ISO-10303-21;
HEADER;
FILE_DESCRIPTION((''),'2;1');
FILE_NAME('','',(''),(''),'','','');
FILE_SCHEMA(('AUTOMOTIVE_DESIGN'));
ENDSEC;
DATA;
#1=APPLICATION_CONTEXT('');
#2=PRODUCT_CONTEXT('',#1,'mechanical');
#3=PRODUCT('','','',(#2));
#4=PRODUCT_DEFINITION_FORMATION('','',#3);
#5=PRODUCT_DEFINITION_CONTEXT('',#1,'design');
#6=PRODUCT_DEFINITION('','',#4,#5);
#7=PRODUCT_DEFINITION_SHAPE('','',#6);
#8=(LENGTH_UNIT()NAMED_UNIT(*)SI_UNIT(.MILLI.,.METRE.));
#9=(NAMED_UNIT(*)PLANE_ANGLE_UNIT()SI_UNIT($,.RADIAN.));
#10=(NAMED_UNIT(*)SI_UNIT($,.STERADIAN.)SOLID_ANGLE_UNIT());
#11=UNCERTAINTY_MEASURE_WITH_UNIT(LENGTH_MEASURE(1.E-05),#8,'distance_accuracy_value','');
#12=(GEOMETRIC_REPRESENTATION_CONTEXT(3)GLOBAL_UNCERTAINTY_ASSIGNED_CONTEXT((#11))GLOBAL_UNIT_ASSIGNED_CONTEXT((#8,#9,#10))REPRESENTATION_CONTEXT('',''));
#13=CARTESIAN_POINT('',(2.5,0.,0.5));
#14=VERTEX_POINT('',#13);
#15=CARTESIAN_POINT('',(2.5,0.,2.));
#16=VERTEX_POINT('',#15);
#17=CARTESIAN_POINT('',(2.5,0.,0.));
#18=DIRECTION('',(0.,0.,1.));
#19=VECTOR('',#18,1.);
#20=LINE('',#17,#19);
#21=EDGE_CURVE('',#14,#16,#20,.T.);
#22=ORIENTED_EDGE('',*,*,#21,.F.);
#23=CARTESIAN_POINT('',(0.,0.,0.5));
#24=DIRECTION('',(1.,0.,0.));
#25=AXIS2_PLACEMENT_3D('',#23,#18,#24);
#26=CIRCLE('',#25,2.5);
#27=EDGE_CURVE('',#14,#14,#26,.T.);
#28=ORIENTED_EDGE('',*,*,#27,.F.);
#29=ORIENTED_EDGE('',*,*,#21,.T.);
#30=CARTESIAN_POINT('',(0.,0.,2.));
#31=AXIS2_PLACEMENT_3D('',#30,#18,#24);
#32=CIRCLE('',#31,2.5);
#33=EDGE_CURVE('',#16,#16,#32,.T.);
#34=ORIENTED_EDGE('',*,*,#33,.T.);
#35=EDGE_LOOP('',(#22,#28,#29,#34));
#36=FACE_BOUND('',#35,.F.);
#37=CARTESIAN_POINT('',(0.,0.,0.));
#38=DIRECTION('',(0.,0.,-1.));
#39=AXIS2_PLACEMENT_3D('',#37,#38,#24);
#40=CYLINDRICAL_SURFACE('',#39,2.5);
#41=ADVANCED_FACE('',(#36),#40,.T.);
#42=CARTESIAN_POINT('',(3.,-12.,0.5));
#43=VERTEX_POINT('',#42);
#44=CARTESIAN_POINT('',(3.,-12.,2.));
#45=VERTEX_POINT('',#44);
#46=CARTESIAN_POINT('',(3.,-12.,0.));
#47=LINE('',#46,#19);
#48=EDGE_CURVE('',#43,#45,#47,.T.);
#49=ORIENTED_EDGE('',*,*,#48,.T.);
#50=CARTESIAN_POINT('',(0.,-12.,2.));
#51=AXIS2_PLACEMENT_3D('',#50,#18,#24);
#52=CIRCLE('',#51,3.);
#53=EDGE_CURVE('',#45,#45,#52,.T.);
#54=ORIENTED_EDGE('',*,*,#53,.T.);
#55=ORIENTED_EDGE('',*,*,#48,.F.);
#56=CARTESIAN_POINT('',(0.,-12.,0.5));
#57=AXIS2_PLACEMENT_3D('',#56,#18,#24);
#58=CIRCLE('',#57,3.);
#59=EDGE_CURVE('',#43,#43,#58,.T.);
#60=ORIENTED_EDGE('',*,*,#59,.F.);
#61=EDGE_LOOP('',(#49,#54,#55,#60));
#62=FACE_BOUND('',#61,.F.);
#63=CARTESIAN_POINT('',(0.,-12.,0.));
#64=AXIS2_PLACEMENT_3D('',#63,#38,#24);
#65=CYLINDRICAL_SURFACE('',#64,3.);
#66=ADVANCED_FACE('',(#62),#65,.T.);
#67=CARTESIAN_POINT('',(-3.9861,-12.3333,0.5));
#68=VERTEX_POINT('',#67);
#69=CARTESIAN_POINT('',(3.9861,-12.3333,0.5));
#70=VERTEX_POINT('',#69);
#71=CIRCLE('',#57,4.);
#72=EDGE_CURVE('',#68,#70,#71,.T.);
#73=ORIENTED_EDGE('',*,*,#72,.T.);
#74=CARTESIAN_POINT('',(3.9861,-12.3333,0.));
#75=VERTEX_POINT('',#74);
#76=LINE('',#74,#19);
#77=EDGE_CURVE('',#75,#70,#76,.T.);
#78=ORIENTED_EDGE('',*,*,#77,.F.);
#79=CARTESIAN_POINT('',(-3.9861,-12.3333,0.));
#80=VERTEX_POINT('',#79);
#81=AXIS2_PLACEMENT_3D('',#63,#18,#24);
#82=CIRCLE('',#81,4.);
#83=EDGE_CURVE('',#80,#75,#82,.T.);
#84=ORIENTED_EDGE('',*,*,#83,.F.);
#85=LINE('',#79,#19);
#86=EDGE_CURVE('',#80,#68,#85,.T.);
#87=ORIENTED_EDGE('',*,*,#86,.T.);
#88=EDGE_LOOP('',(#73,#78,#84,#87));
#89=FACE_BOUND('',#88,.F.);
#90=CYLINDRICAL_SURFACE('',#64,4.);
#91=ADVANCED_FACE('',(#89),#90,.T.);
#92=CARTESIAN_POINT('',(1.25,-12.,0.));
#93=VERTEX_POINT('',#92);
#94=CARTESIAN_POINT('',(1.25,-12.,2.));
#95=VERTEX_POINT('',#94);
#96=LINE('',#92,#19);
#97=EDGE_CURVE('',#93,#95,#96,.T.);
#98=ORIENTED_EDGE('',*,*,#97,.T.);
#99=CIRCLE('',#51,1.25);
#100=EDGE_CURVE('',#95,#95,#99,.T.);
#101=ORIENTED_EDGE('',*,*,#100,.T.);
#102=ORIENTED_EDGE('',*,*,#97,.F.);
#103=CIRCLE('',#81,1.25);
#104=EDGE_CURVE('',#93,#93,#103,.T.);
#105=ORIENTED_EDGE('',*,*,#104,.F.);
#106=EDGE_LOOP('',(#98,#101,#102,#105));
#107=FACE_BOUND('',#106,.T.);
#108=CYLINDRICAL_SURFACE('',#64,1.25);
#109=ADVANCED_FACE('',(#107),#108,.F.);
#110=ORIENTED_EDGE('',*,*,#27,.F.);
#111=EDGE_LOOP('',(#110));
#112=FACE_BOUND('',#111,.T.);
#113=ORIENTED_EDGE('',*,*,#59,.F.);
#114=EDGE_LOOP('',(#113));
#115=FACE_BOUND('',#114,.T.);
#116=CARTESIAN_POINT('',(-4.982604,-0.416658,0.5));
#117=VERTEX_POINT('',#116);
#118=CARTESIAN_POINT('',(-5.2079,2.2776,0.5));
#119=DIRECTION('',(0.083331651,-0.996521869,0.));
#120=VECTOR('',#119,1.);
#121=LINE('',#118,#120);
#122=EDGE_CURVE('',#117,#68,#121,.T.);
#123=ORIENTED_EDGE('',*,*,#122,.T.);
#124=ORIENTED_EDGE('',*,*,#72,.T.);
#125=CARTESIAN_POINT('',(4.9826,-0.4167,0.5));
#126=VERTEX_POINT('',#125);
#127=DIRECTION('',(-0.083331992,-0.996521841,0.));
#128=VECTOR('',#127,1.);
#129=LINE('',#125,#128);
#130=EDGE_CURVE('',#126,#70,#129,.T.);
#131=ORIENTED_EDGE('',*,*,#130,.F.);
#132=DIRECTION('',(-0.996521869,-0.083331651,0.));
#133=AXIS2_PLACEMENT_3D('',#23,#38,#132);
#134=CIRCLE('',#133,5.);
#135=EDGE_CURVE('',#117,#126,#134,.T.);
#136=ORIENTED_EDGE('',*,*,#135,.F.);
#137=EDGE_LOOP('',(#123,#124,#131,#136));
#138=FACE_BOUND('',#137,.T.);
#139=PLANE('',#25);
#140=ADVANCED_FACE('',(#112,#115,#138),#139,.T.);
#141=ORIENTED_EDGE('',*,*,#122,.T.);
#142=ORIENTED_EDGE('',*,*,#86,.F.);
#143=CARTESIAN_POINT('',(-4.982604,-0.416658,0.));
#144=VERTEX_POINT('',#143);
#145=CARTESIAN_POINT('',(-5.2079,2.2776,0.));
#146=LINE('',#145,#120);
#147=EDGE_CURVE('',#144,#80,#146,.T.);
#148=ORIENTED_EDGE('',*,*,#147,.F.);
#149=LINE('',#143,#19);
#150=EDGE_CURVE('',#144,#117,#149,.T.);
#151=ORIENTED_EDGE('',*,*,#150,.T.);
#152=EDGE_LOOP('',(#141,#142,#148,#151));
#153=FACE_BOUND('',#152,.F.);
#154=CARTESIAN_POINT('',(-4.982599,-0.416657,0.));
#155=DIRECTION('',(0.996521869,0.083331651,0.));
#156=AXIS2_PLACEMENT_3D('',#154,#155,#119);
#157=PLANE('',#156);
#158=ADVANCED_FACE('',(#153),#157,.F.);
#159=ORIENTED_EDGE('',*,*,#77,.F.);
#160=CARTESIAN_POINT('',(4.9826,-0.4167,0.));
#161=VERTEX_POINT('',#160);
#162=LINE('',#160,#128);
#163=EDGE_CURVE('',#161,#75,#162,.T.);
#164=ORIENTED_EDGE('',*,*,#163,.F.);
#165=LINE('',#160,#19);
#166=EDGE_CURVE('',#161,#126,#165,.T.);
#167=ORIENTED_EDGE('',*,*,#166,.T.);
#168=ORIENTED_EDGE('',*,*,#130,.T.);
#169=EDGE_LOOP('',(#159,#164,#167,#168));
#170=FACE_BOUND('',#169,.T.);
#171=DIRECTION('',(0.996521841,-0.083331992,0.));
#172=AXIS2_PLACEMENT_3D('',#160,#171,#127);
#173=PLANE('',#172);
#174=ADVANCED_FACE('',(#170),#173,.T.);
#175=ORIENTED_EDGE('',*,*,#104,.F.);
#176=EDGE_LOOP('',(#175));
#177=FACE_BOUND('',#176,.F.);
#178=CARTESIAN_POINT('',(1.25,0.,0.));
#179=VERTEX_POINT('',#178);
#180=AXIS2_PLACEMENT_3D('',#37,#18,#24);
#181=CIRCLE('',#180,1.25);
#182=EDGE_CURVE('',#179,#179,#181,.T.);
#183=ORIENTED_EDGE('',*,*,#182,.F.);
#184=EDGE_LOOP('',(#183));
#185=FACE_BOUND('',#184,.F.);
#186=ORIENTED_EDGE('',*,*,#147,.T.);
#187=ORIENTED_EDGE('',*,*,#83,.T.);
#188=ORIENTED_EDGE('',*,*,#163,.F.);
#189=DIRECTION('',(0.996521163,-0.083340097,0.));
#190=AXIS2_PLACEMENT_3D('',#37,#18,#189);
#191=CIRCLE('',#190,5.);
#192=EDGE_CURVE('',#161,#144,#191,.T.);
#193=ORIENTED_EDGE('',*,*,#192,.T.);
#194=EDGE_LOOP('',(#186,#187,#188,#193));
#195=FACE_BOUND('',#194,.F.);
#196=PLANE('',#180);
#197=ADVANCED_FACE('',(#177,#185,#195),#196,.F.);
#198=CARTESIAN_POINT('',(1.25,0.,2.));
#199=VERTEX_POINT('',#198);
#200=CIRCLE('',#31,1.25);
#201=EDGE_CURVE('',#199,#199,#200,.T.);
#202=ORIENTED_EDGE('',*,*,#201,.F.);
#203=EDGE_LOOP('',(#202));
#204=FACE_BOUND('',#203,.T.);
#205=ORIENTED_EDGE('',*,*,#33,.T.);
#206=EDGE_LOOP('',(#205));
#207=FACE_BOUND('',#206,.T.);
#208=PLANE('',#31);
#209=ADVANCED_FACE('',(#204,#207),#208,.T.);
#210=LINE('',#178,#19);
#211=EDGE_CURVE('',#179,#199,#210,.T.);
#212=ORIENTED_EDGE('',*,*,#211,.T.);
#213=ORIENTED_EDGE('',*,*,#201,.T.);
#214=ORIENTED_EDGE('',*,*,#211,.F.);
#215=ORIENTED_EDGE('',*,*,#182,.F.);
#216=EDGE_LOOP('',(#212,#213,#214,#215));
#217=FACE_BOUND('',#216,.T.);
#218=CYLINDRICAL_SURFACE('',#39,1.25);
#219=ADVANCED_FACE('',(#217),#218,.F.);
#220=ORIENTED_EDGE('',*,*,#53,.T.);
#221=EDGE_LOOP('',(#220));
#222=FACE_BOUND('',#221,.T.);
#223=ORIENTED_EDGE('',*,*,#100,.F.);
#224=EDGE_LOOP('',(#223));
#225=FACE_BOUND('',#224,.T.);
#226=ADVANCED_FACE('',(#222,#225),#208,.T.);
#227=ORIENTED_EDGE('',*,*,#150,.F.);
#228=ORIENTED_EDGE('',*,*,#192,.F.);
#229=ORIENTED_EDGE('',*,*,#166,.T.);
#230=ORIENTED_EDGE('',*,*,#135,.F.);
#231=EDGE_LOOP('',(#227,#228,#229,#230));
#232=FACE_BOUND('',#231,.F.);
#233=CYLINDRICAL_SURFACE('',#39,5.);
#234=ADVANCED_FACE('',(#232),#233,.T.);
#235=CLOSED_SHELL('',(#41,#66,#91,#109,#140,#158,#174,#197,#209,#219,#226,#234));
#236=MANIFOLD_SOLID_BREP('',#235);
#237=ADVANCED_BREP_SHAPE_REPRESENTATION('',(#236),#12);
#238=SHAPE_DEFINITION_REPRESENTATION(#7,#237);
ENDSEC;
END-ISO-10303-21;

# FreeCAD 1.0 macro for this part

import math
import FreeCAD as App
import Part
import Sketcher
from FreeCAD import Vector

doc = App.newDocument("Part")
params = doc.addObject("Spreadsheet::Sheet", "Params")
for row, (alias, value) in enumerate([
    ("sketch1_diameter", "5 mm"),
    ("sketch1_diameter2", "6 mm"),
    ("sketch1_radius", "4 mm"),
    ("sketch1_radius2", "5 mm"),
    ("pad1_length", "0.5 mm"),
    ("sketch2_diameter", "5 mm"),
    ("sketch2_diameter2", "6 mm"),
    ("sketch2_diameter3", "2.5 mm"),
    ("pad2_length", "2 mm"),
], start=1):
    params.set(f"A{row}", alias)
    params.set(f"B{row}", "=" + value)
    params.setAlias(f"B{row}", alias)

body = doc.addObject("PartDesign::Body", "Body")

sketch1 = doc.addObject("Sketcher::SketchObject", "Sketch")
body.addObject(sketch1)
sketch1.AttachmentSupport = (doc.XY_Plane, [""])
sketch1.MapMode = "FlatFace"
sketch1.addGeometry([
    Part.LineSegment(Vector(-4.982599, -0.416657, 0), Vector(-3.9861, -12.3333, 0)),
    Part.ArcOfCircle(Part.Circle(Vector(0, -12, 0), Vector(0, 0, 1), 4), math.radians(-175.2203), math.radians(-4.7797)),
    Part.LineSegment(Vector(3.9861, -12.3333, 0), Vector(4.9826, -0.4167, 0)),
    Part.ArcOfCircle(Part.Circle(Vector(0, 0, 0), Vector(0, 0, 1), 5), math.radians(-4.780581), math.radians(184.780095)),
    Part.Circle(Vector(0, 0, 0), Vector(0, 0, 1), 2.5),
    Part.Circle(Vector(0, -12, 0), Vector(0, 0, 1), 3),
], False)
sketch1.addConstraint([
    Sketcher.Constraint("Tangent", 0, 2, 1, 1),
    Sketcher.Constraint("Tangent", 1, 2, 2, 1),
    Sketcher.Constraint("Tangent", 2, 2, 3, 1),
    Sketcher.Constraint("Tangent", 3, 2, 0, 1),
    Sketcher.Constraint("Coincident", 3, 3, -1, 1),
    Sketcher.Constraint("Coincident", 4, 3, -1, 1),
    Sketcher.Constraint("Coincident", 5, 3, 1, 3),
    Sketcher.Constraint("PointOnObject", 1, 3, -2),
    Sketcher.Constraint("Diameter", 4, 5.0),
    Sketcher.Constraint("Diameter", 5, 6.0),
    Sketcher.Constraint("Radius", 1, 4.0),
    Sketcher.Constraint("Radius", 3, 5.0),
    Sketcher.Constraint("DistanceY", 1, 3, -1, 1, 12.0),
])
sketch1.setExpression("Constraints[8]", "Params.sketch1_diameter")
sketch1.setExpression("Constraints[9]", "Params.sketch1_diameter2")
sketch1.setExpression("Constraints[10]", "Params.sketch1_radius")
sketch1.setExpression("Constraints[11]", "Params.sketch1_radius2")
pad1 = doc.addObject("PartDesign::Pad", "Pad")
body.addObject(pad1)
pad1.Profile = sketch1
pad1.setExpression("Length", "Params.pad1_length")

sketch2 = doc.addObject("Sketcher::SketchObject", "Sketch001")
body.addObject(sketch2)
sketch2.AttachmentSupport = (doc.XY_Plane, [""])
sketch2.MapMode = "FlatFace"
sketch2.addGeometry([
    Part.Circle(Vector(0, 0, 0), Vector(0, 0, 1), 2.5),
    Part.Circle(Vector(0, 0, 0), Vector(0, 0, 1), 1.25),
    Part.Circle(Vector(0, -12, 0), Vector(0, 0, 1), 3),
    Part.Circle(Vector(0, -12, 0), Vector(0, 0, 1), 1.25),
], False)
sketch2.addConstraint([
    Sketcher.Constraint("Coincident", 0, 3, -1, 1),
    Sketcher.Constraint("Coincident", 1, 3, -1, 1),
    Sketcher.Constraint("Coincident", 3, 3, 2, 3),
    Sketcher.Constraint("Equal", 1, 3),
    Sketcher.Constraint("PointOnObject", 2, 3, -2),
    Sketcher.Constraint("Diameter", 0, 5.0),
    Sketcher.Constraint("Diameter", 2, 6.0),
    Sketcher.Constraint("Diameter", 1, 2.5),
    Sketcher.Constraint("DistanceY", 2, 3, -1, 1, 12.0),
])
sketch2.setExpression("Constraints[5]", "Params.sketch2_diameter")
sketch2.setExpression("Constraints[6]", "Params.sketch2_diameter2")
sketch2.setExpression("Constraints[7]", "Params.sketch2_diameter3")
pad2 = doc.addObject("PartDesign::Pad", "Pad001")
body.addObject(pad2)
pad2.Profile = sketch2
pad2.setExpression("Length", "Params.pad2_length")

doc.recompute()
